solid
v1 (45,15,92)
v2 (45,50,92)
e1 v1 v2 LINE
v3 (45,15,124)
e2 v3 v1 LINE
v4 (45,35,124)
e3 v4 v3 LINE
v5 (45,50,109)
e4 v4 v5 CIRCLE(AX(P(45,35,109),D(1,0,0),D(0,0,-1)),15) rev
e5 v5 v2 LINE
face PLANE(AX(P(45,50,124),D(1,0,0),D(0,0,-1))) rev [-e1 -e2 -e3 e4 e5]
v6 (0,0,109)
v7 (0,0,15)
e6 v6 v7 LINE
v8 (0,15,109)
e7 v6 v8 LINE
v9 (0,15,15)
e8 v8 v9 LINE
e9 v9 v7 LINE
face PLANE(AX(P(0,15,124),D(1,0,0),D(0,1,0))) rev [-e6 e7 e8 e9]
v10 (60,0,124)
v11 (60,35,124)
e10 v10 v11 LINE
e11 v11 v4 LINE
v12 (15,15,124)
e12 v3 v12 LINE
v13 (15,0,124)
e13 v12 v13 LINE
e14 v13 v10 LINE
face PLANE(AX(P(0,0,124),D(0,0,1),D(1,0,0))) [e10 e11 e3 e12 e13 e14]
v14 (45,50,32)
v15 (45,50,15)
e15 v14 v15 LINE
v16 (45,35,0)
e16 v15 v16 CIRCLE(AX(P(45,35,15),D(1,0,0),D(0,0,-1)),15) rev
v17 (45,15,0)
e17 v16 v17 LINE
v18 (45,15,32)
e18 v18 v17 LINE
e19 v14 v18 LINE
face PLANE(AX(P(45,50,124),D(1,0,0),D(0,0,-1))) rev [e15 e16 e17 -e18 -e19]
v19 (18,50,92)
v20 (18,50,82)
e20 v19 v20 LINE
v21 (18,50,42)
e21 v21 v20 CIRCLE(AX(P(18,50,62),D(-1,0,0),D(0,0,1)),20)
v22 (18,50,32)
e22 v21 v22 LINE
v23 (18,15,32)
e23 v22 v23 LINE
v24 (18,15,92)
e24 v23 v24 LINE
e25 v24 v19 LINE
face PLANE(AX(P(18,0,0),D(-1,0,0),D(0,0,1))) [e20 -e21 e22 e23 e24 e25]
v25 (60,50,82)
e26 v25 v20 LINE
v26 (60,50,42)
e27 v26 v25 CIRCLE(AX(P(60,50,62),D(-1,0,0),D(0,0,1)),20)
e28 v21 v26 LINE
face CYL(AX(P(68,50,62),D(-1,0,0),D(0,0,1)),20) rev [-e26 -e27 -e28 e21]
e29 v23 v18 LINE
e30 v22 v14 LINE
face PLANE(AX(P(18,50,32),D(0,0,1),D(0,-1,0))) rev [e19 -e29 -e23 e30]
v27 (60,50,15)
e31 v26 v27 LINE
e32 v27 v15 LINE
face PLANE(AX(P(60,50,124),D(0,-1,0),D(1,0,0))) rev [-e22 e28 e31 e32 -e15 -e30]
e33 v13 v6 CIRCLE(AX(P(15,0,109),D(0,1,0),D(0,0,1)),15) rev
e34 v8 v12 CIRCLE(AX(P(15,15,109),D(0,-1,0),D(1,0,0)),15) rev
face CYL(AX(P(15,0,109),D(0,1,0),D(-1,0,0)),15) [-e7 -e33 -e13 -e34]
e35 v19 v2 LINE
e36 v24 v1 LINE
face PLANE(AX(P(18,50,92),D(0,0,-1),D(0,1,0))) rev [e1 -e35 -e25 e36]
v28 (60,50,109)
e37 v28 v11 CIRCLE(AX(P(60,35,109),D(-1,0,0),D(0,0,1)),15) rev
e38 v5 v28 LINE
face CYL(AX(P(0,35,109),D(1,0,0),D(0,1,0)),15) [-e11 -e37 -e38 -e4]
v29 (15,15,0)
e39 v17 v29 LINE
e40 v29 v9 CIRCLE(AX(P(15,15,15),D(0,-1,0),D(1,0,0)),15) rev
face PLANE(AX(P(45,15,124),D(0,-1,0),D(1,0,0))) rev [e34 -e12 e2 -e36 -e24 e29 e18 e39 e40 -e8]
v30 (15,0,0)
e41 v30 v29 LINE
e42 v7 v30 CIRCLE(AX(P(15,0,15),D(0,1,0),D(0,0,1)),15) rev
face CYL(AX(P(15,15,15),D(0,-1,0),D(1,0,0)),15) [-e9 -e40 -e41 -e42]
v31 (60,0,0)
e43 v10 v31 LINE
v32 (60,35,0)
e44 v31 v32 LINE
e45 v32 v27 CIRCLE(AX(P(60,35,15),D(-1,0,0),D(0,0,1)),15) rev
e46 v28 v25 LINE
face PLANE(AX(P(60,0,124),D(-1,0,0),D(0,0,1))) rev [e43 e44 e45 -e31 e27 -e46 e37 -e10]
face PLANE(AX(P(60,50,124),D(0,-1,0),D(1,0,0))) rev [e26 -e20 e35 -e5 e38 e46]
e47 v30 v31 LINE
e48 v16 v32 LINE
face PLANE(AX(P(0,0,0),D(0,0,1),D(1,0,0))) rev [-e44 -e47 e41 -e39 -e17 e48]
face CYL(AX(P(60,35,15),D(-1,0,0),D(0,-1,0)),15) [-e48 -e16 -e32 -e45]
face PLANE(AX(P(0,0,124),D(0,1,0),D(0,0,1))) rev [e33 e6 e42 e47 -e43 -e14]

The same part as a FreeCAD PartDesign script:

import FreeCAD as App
import Part
import Sketcher
from FreeCAD import Vector
Q = App.Units.Quantity


def edges_at(feature, points):
    """Names of the edges that pass closest to the given points."""
    edges = feature.Shape.Edges
    near = lambda p: min(range(len(edges)), key=lambda i: edges[i].distToShape(Part.Vertex(*p))[0])
    return sorted({f"Edge{near(p) + 1}" for p in points})


def add_polygon(sketch, points):
    """Adds a closed chain of lines whose ends are joined by coincident constraints."""
    first, n = sketch.GeometryCount, len(points)
    for a, b in zip(points, points[1:] + points[:1]):
        sketch.addGeometry(Part.LineSegment(App.Vector(*a, 0), App.Vector(*b, 0)), False)
    for i in range(n):
        sketch.addConstraint(Sketcher.Constraint("Coincident", first + i, 2, first + (i + 1) % n, 1))

doc = App.newDocument("Part")
params = doc.addObject("Spreadsheet::Sheet", "Params")
for row, (alias, value) in enumerate([
    ("sketch1_width", "60 mm"),
    ("sketch1_width2", "15 mm"),
    ("sketch1_height", "50 mm"),
    ("pad1_length", "124 mm"),
    ("fillet_radius", "15 mm"),
    ("fillet2_radius", "15 mm"),
    ("sketch2_width", "35 mm"),
    ("sketch2_height", "60 mm"),
    ("pad2_length", "27 mm"),
    ("sketch3_diameter", "40 mm"),
    ("pocket1_length", "50 mm"),
], start=1):
    params.set(f"A{row}", alias)
    params.set(f"B{row}", "=" + value)
    params.setAlias(f"B{row}", alias)

body = doc.addObject("PartDesign::Body", "Body")

# Sketch on XY plane
sketch1 = body.newObject("Sketcher::SketchObject", "Sketch")
sketch1.AttachmentSupport = (doc.getObject("XY_Plane"), [""])
sketch1.MapMode = "FlatFace"
add_polygon(sketch1, [(0, 0), (60, 0), (60, 50), (45, 50), (45, 15), (0, 15)])  # lines 0-5
sketch1.addConstraint(Sketcher.Constraint("Horizontal", 0))
sketch1.addConstraint(Sketcher.Constraint("Vertical", 1))
sketch1.addConstraint(Sketcher.Constraint("Horizontal", 2))
sketch1.addConstraint(Sketcher.Constraint("Vertical", 3))
sketch1.addConstraint(Sketcher.Constraint("Horizontal", 4))
sketch1.addConstraint(Sketcher.Constraint("Vertical", 5))
sketch1.addConstraint(Sketcher.Constraint("Coincident", 5, 2, -1, 1))
sketch1.addConstraint(Sketcher.Constraint("Equal", 2, 5))
sketch1.addConstraint(Sketcher.Constraint("DistanceX", 0, 1, 0, 2, Q("60 mm")))
sketch1.addConstraint(Sketcher.Constraint("DistanceX", 2, 2, 2, 1, Q("15 mm")))
sketch1.addConstraint(Sketcher.Constraint("DistanceY", 1, 1, 1, 2, Q("50 mm")))
sketch1.setExpression("Constraints[14]", "Params.sketch1_width")
sketch1.setExpression("Constraints[15]", "Params.sketch1_width2")
sketch1.setExpression("Constraints[16]", "Params.sketch1_height")
pad1 = body.newObject("PartDesign::Pad", "Pad")
pad1.Profile = sketch1
pad1.setExpression("Length", "Params.pad1_length")
doc.recompute()

fillet = body.newObject("PartDesign::Fillet", "Fillet")
fillet.Base = (pad1, edges_at(pad1, [(52.5, 50, 124), (0, 7.5, 124), (52.5, 50, 0)]))
fillet.setExpression("Radius", "Params.fillet_radius")
doc.recompute()

fillet2 = body.newObject("PartDesign::Fillet", "Fillet001")
fillet2.Base = (fillet, edges_at(fillet, [(0, 7.5, 0)]))
fillet2.setExpression("Radius", "Params.fillet2_radius")

# Sketch on YZ plane
sketch2 = body.newObject("Sketcher::SketchObject", "Sketch001")
sketch2.AttachmentSupport = (doc.getObject("YZ_Plane"), [""])
sketch2.MapMode = "FlatFace"
sketch2.AttachmentOffset = App.Placement(Vector(0, 0, 45), App.Rotation())
add_polygon(sketch2, [(50, 32), (15, 32), (15, 92), (50, 92)])  # lines 0-3
sketch2.addConstraint(Sketcher.Constraint("Horizontal", 0))
sketch2.addConstraint(Sketcher.Constraint("Vertical", 1))
sketch2.addConstraint(Sketcher.Constraint("Horizontal", 2))
sketch2.addConstraint(Sketcher.Constraint("Vertical", 3))
sketch2.addConstraint(Sketcher.Constraint("DistanceX", 0, 2, 0, 1, Q("35 mm")))
sketch2.addConstraint(Sketcher.Constraint("DistanceY", 1, 1, 1, 2, Q("60 mm")))
sketch2.addConstraint(Sketcher.Constraint("DistanceX", -1, 1, 0, 2, Q("15 mm")))
sketch2.addConstraint(Sketcher.Constraint("DistanceY", -1, 1, 0, 2, Q("32 mm")))
sketch2.setExpression("Constraints[8]", "Params.sketch2_width")
sketch2.setExpression("Constraints[9]", "Params.sketch2_height")
pad2 = body.newObject("PartDesign::Pad", "Pad001")
pad2.Profile = sketch2
pad2.setExpression("Length", "Params.pad2_length")
pad2.Reversed = True

# Sketch on YZ plane
sketch3 = body.newObject("Sketcher::SketchObject", "Sketch002")
sketch3.AttachmentSupport = (doc.getObject("YZ_Plane"), [""])
sketch3.MapMode = "FlatFace"
sketch3.AttachmentOffset = App.Placement(Vector(0, 0, 18), App.Rotation())
sketch3.addGeometry(Part.Circle(Vector(50, 62, 0), Vector(0, 0, 1), 20), False)
sketch3.addConstraint(Sketcher.Constraint("Diameter", 0, Q("40 mm")))
sketch3.addConstraint(Sketcher.Constraint("DistanceX", -1, 1, 0, 3, Q("50 mm")))
sketch3.addConstraint(Sketcher.Constraint("DistanceY", -1, 1, 0, 3, Q("62 mm")))
sketch3.setExpression("Constraints[0]", "Params.sketch3_diameter")
pocket1 = body.newObject("PartDesign::Pocket", "Pocket")
pocket1.Profile = sketch3
pocket1.setExpression("Length", "Params.pocket1_length")
pocket1.Reversed = True

doc.recompute()
